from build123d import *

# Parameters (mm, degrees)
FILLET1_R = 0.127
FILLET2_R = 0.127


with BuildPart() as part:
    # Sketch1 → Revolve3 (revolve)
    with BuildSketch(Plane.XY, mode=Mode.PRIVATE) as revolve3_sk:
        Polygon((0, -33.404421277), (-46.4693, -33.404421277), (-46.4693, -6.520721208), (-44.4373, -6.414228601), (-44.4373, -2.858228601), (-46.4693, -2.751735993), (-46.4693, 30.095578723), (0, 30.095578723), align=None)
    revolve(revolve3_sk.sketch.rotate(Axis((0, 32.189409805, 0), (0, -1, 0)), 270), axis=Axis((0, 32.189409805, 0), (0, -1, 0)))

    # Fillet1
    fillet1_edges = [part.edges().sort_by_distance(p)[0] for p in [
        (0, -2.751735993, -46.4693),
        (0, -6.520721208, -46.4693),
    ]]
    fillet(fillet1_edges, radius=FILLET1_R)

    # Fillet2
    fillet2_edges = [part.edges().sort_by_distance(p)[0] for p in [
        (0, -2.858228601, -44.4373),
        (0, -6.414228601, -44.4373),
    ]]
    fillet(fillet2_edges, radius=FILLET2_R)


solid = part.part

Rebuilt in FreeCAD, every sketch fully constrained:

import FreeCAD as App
import Part
import Sketcher
Q = App.Units.Quantity


def edges_at(feature, points):
    """Names of the edges that pass closest to the given points."""
    edges = feature.Shape.Edges
    near = lambda p: min(range(len(edges)), key=lambda i: edges[i].distToShape(Part.Vertex(*p))[0])
    return sorted({f"Edge{near(p) + 1}" for p in points})

doc = App.newDocument("Part")
params = doc.addObject("Spreadsheet::Sheet", "Params")
for row, (alias, value) in enumerate([
    ("sketch1_height", "2.5 in"),
    ("sketch1_height2", "0.14 in"),
    ("revolution_angle", "360 deg"),
    ("fillet_radius", "0.005 in"),
    ("fillet2_radius", "0.005 in"),
], start=1):
    params.set(f"A{row}", alias)
    params.set(f"B{row}", "=" + value)
    params.setAlias(f"B{row}", alias)

body = doc.addObject("PartDesign::Body", "Body")

# Sketch on XY plane
sketch1 = body.newObject("Sketcher::SketchObject", "Sketch")
sketch1.AttachmentSupport = (doc.getObject("XY_Plane"), [""])
sketch1.MapMode = "FlatFace"
sketch1.addGeometry([
    Part.LineSegment(App.Vector(-46.5, -33.4, 0), App.Vector(0, -33.4, 0)),  # 0
    Part.LineSegment(App.Vector(0, -33.4, 0), App.Vector(0, 30.1, 0)),  # 1
    Part.LineSegment(App.Vector(0, 30.1, 0), App.Vector(-46.5, 30.1, 0)),  # 2
    Part.LineSegment(App.Vector(-46.5, 30.1, 0), App.Vector(-46.5, -2.8, 0)),  # 3
    Part.LineSegment(App.Vector(-46.5, -2.8, 0), App.Vector(-44.4, -2.9, 0)),  # 4
    Part.LineSegment(App.Vector(-44.4, -2.9, 0), App.Vector(-44.4, -6.4, 0)),  # 5
    Part.LineSegment(App.Vector(-44.4, -6.4, 0), App.Vector(-46.5, -6.5, 0)),  # 6
    Part.LineSegment(App.Vector(-46.5, -6.5, 0), App.Vector(-46.5, -33.4, 0)),  # 7
], False)
sketch1.addConstraint([
    Sketcher.Constraint("Coincident", 0, 2, 1, 1),
    Sketcher.Constraint("Coincident", 1, 2, 2, 1),
    Sketcher.Constraint("Coincident", 2, 2, 3, 1),
    Sketcher.Constraint("Coincident", 3, 2, 4, 1),
    Sketcher.Constraint("Coincident", 4, 2, 5, 1),
    Sketcher.Constraint("Coincident", 5, 2, 6, 1),
    Sketcher.Constraint("Coincident", 6, 2, 7, 1),
    Sketcher.Constraint("Coincident", 7, 2, 0, 1),
    Sketcher.Constraint("Horizontal", 0),
    Sketcher.Constraint("Vertical", 1),
    Sketcher.Constraint("Horizontal", 2),
    Sketcher.Constraint("Vertical", 3),
    Sketcher.Constraint("Vertical", 5),
    Sketcher.Constraint("Vertical", 7),
    Sketcher.Constraint("PointOnObject", 0, 2, -2),
    Sketcher.Constraint("Vertical", 3, 2, 6, 2),
    Sketcher.Constraint("Equal", 4, 6),
    Sketcher.Constraint("DistanceY", 1, 1, 1, 2, Q("2.5 in")),
    Sketcher.Constraint("Angle", 4, Q("-3 deg")),
    Sketcher.Constraint("DistanceY", 5, 2, 5, 1, Q("0.14 in")),
    Sketcher.Constraint("DistanceX", 3, 2, 4, 2, Q("0.08 in")),
    Sketcher.Constraint("DistanceX", 0, 1, 0, 2, Q("1.8295 in")),
    Sketcher.Constraint("DistanceY", 7, 2, 7, 1, Q("26.8837 mm")),
    Sketcher.Constraint("DistanceY", 0, 2, -1, 1, Q("33.404421 mm")),
])
sketch1.setExpression("Constraints[17]", "Params.sketch1_height")
sketch1.setExpression("Constraints[19]", "Params.sketch1_height2")
revolution = body.newObject("PartDesign::Revolution", "Revolution")
revolution.Profile = sketch1
revolution.ReferenceAxis = (sketch1, ["V_Axis"])
revolution.setExpression("Angle", "Params.revolution_angle")
doc.recompute()

fillet = body.newObject("PartDesign::Fillet", "Fillet")
fillet.Base = (revolution, edges_at(revolution, [(0, -2.752, -46.469), (0, -6.521, -46.469)]))
fillet.setExpression("Radius", "Params.fillet_radius")
doc.recompute()

fillet2 = body.newObject("PartDesign::Fillet", "Fillet001")
fillet2.Base = (fillet, edges_at(fillet, [(0, -2.858, -44.437), (0, -6.414, -44.437)]))
fillet2.setExpression("Radius", "Params.fillet2_radius")

doc.recompute()
